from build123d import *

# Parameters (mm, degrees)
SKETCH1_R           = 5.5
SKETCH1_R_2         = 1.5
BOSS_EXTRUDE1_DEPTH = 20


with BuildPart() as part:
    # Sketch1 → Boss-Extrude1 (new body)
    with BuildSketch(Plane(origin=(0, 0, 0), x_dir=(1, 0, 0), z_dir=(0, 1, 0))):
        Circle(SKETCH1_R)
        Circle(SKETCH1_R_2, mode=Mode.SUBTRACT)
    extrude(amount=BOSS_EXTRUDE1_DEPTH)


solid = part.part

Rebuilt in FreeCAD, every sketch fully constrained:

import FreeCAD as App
import Part
import Sketcher

doc = App.newDocument("Part")
body = doc.addObject("PartDesign::Body", "Body")

# Sketch on XZ plane
sketch1 = body.newObject("Sketcher::SketchObject", "Sketch")
sketch1.AttachmentSupport = (doc.getObject("XZ_Plane"), [""])
sketch1.MapMode = "FlatFace"
sketch1.addGeometry([
    Part.Circle(App.Vector(0, 0, 0), App.Vector(0, 0, 1), 5.5),
    Part.Circle(App.Vector(0, 0, 0), App.Vector(0, 0, 1), 1.5),
], False)
sketch1.addConstraint([
    Sketcher.Constraint("Coincident", 0, 3, -1, 1),
    Sketcher.Constraint("Coincident", 1, 3, -1, 1),
    Sketcher.Constraint("Diameter", 0, 11.0),
    Sketcher.Constraint("Diameter", 1, 3.0),
])
pad1 = body.newObject("PartDesign::Pad", "Pad")
pad1.Profile = sketch1
pad1.Length = 20
pad1.Reversed = True

doc.recompute()
